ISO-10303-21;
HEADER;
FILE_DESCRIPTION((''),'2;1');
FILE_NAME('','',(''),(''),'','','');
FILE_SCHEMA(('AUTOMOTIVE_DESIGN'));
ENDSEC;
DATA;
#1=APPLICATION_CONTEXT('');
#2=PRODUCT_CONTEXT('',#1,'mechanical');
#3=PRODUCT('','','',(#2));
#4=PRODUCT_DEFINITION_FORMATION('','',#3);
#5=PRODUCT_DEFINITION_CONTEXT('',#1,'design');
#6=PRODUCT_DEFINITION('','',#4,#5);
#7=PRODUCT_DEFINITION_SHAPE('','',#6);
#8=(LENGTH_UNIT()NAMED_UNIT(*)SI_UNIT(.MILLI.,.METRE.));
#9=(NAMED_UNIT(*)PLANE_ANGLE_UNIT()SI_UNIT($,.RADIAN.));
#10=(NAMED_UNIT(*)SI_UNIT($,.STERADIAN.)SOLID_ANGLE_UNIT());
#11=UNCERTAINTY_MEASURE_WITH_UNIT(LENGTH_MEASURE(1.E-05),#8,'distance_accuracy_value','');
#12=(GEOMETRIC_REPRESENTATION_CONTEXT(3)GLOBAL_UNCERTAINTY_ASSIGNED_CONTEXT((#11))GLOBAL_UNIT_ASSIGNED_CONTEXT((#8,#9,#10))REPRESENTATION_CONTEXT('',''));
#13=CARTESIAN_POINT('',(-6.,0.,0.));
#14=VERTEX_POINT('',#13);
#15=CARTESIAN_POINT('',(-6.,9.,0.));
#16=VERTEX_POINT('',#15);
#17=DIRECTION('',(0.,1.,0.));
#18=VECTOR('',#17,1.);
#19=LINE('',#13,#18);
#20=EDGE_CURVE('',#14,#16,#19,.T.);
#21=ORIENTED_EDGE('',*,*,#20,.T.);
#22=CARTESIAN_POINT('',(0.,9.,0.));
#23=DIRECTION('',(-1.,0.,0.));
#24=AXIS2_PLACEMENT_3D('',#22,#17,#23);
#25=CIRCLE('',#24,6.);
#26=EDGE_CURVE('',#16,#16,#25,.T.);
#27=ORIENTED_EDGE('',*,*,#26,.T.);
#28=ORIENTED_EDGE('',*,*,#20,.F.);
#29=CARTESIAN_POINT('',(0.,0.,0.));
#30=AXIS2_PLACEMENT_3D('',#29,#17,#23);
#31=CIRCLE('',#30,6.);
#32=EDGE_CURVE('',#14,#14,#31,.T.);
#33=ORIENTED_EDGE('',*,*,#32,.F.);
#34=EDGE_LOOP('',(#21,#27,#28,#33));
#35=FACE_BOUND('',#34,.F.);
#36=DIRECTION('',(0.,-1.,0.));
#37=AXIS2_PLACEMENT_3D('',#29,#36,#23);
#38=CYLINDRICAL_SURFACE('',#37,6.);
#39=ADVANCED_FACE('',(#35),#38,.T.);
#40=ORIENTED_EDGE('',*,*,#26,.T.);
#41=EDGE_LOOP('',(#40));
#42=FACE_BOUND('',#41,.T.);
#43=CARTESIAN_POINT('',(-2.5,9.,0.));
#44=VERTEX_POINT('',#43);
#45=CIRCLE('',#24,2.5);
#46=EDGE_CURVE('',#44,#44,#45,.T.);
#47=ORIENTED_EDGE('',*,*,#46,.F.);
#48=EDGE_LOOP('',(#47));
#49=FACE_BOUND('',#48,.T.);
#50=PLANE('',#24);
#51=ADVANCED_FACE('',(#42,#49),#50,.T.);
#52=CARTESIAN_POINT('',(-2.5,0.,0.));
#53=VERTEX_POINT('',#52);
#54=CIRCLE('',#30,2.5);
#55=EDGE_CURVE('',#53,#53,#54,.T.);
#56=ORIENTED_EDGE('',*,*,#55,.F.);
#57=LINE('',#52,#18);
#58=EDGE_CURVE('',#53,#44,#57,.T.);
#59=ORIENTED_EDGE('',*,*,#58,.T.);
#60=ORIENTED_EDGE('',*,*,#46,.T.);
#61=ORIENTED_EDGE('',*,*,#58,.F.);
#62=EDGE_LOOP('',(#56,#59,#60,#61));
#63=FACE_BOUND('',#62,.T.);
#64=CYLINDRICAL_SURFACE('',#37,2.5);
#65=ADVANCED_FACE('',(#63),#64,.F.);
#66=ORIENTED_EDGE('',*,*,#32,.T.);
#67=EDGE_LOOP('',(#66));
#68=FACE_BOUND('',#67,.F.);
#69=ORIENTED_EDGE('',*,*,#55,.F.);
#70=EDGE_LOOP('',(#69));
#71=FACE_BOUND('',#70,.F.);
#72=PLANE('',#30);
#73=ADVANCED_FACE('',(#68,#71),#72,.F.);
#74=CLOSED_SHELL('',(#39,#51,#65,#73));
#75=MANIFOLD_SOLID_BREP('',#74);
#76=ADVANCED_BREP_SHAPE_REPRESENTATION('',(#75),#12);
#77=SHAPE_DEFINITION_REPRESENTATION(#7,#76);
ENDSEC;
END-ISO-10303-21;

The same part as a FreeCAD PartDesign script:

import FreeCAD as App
import Part
import Sketcher

V = App.Vector
Q = App.Units.Quantity

doc = App.newDocument("Part")
body = doc.addObject("PartDesign::Body", "Body")

sketch1 = body.newObject("Sketcher::SketchObject", "Sketch")
sketch1.AttachmentSupport = (doc.getObject("XZ_Plane"), [""])
sketch1.MapMode = "FlatFace"
sketch1.addGeometry(Part.Circle(V(0, 0, 0), V(0, 0, 1), 6), False)
sketch1.addGeometry(Part.Circle(V(0, 0, 0), V(0, 0, 1), 2.5), False)
sketch1.addConstraint(Sketcher.Constraint("Coincident", 0, 3, -1, 1))
sketch1.addConstraint(Sketcher.Constraint("Coincident", 1, 3, -1, 1))
sketch1.addConstraint(Sketcher.Constraint("Diameter", 0, Q("12 mm")))
sketch1.addConstraint(Sketcher.Constraint("Diameter", 1, Q("5 mm")))
pad1 = body.newObject("PartDesign::Pad", "Pad")
pad1.Profile = sketch1
pad1.Length = 9
pad1.Reversed = True

doc.recompute()
